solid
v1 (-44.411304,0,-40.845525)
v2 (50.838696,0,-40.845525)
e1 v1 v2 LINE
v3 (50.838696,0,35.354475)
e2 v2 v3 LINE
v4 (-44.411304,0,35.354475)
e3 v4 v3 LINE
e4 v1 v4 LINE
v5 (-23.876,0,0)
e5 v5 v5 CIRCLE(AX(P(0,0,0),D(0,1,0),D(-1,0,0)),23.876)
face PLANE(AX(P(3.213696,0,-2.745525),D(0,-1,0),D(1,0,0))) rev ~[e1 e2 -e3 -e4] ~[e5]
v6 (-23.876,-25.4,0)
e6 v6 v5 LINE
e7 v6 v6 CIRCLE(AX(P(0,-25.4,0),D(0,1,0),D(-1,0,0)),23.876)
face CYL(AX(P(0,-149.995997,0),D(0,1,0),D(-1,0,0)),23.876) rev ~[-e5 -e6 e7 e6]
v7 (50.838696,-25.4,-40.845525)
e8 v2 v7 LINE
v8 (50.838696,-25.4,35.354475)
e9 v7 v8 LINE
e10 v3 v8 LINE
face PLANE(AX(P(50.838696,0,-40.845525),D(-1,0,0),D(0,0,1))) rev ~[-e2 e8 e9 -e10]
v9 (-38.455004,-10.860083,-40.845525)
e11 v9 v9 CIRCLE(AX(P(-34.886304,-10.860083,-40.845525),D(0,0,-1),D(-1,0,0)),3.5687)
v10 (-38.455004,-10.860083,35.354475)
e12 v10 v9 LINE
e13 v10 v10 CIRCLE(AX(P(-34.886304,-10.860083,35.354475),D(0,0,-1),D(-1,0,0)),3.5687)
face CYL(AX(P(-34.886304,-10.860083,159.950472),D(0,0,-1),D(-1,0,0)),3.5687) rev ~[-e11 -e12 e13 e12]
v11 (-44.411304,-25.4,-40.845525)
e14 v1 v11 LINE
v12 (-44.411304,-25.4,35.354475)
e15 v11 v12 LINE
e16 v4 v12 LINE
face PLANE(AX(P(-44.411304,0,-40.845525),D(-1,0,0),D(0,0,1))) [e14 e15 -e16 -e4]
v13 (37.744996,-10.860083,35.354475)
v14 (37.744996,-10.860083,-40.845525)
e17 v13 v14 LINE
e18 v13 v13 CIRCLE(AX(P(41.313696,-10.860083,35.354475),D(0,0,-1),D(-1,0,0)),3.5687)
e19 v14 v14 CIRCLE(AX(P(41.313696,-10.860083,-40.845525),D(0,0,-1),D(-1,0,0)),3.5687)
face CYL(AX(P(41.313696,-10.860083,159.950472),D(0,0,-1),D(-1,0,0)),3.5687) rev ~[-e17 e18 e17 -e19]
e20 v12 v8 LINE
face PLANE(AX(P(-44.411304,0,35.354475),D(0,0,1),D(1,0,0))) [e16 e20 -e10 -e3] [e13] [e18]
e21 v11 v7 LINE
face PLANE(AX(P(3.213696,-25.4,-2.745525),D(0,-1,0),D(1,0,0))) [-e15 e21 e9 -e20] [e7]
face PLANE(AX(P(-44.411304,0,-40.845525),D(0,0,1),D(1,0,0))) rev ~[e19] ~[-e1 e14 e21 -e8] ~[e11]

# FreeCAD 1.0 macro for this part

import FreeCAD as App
import Part
import Sketcher
Q = App.Units.Quantity

doc = App.newDocument("Part")
body = doc.addObject("PartDesign::Body", "Body")

sketch1 = body.newObject("Sketcher::SketchObject", "Sketch")
sketch1.AttachmentSupport = (doc.getObject("XZ_Plane"), [""])
sketch1.MapMode = "FlatFace"
sketch1.addGeometry([
    Part.LineSegment(App.Vector(-44, 35, 0), App.Vector(-44, -41, 0)),
    Part.LineSegment(App.Vector(-44, -41, 0), App.Vector(51, -41, 0)),
    Part.LineSegment(App.Vector(51, -41, 0), App.Vector(51, 35, 0)),
    Part.LineSegment(App.Vector(51, 35, 0), App.Vector(-44, 35, 0)),
], False)
sketch1.addConstraint([
    Sketcher.Constraint("Coincident", 0, 2, 1, 1),
    Sketcher.Constraint("Coincident", 1, 2, 2, 1),
    Sketcher.Constraint("Coincident", 2, 2, 3, 1),
    Sketcher.Constraint("Coincident", 3, 2, 0, 1),
    Sketcher.Constraint("Vertical", 0),
    Sketcher.Constraint("Horizontal", 1),
    Sketcher.Constraint("Vertical", 2),
    Sketcher.Constraint("Horizontal", 3),
    Sketcher.Constraint("DistanceY", 0, 2, 0, 1, Q("3 in")),
    Sketcher.Constraint("DistanceX", 1, 1, 1, 2, Q("3.75 in")),
    Sketcher.Constraint("DistanceX", 0, 2, -1, 1, 44.411304),
    Sketcher.Constraint("DistanceY", 0, 2, -1, 1, 40.845525),
])
pad1 = body.newObject("PartDesign::Pad", "Pad")
pad1.Profile = sketch1
pad1.Length = Q("1 in")

sketch2 = body.newObject("Sketcher::SketchObject", "Sketch001")
sketch2.AttachmentSupport = (doc.getObject("XZ_Plane"), [""])
sketch2.MapMode = "FlatFace"
sketch2.AttachmentOffset = App.Placement(App.Vector(0, 0, 1 * 25.4), App.Rotation())
sketch2.addGeometry(Part.Circle(App.Vector(0, 0, 0), App.Vector(0, 0, 1), 24), False)
sketch2.addConstraint([
    Sketcher.Constraint("Coincident", 0, 3, -1, 1),
    Sketcher.Constraint("Diameter", 0, Q("1.88 in")),
])
doc.recompute()
hole = body.newObject("PartDesign::Hole", "Hole")
hole.Profile = sketch2
hole.ThreadType = "None"
hole.Diameter = Q("1.88 in")
hole.DepthType = "ThroughAll"

sketch3 = body.newObject("Sketcher::SketchObject", "Sketch002")
sketch3.AttachmentSupport = (doc.getObject("XY_Plane"), [""])
sketch3.MapMode = "FlatFace"
sketch3.AttachmentOffset = App.Placement(App.Vector(0, 0, 35.354475), App.Rotation())
sketch3.addGeometry([
    Part.Circle(App.Vector(-34.9, -10.9, 0), App.Vector(0, 0, 1), 3.6),
    Part.Circle(App.Vector(41.3, -10.9, 0), App.Vector(0, 0, 1), 3.6),
], False)
sketch3.addConstraint([
    Sketcher.Constraint("Equal", 0, 1),
    Sketcher.Constraint("Horizontal", 0, 3, 1, 3),
    Sketcher.Constraint("Diameter", 0, Q("0.281 in")),
    Sketcher.Constraint("DistanceX", 0, 3, 1, 3, Q("3 in")),
    Sketcher.Constraint("DistanceX", 0, 3, -1, 1, 34.886304),
    Sketcher.Constraint("DistanceY", 0, 3, -1, 1, 10.860083),
])
doc.recompute()
hole2 = body.newObject("PartDesign::Hole", "Hole001")
hole2.Profile = sketch3
hole2.ThreadType = "None"
hole2.Diameter = Q("0.281 in")
hole2.DepthType = "ThroughAll"

doc.recompute()
